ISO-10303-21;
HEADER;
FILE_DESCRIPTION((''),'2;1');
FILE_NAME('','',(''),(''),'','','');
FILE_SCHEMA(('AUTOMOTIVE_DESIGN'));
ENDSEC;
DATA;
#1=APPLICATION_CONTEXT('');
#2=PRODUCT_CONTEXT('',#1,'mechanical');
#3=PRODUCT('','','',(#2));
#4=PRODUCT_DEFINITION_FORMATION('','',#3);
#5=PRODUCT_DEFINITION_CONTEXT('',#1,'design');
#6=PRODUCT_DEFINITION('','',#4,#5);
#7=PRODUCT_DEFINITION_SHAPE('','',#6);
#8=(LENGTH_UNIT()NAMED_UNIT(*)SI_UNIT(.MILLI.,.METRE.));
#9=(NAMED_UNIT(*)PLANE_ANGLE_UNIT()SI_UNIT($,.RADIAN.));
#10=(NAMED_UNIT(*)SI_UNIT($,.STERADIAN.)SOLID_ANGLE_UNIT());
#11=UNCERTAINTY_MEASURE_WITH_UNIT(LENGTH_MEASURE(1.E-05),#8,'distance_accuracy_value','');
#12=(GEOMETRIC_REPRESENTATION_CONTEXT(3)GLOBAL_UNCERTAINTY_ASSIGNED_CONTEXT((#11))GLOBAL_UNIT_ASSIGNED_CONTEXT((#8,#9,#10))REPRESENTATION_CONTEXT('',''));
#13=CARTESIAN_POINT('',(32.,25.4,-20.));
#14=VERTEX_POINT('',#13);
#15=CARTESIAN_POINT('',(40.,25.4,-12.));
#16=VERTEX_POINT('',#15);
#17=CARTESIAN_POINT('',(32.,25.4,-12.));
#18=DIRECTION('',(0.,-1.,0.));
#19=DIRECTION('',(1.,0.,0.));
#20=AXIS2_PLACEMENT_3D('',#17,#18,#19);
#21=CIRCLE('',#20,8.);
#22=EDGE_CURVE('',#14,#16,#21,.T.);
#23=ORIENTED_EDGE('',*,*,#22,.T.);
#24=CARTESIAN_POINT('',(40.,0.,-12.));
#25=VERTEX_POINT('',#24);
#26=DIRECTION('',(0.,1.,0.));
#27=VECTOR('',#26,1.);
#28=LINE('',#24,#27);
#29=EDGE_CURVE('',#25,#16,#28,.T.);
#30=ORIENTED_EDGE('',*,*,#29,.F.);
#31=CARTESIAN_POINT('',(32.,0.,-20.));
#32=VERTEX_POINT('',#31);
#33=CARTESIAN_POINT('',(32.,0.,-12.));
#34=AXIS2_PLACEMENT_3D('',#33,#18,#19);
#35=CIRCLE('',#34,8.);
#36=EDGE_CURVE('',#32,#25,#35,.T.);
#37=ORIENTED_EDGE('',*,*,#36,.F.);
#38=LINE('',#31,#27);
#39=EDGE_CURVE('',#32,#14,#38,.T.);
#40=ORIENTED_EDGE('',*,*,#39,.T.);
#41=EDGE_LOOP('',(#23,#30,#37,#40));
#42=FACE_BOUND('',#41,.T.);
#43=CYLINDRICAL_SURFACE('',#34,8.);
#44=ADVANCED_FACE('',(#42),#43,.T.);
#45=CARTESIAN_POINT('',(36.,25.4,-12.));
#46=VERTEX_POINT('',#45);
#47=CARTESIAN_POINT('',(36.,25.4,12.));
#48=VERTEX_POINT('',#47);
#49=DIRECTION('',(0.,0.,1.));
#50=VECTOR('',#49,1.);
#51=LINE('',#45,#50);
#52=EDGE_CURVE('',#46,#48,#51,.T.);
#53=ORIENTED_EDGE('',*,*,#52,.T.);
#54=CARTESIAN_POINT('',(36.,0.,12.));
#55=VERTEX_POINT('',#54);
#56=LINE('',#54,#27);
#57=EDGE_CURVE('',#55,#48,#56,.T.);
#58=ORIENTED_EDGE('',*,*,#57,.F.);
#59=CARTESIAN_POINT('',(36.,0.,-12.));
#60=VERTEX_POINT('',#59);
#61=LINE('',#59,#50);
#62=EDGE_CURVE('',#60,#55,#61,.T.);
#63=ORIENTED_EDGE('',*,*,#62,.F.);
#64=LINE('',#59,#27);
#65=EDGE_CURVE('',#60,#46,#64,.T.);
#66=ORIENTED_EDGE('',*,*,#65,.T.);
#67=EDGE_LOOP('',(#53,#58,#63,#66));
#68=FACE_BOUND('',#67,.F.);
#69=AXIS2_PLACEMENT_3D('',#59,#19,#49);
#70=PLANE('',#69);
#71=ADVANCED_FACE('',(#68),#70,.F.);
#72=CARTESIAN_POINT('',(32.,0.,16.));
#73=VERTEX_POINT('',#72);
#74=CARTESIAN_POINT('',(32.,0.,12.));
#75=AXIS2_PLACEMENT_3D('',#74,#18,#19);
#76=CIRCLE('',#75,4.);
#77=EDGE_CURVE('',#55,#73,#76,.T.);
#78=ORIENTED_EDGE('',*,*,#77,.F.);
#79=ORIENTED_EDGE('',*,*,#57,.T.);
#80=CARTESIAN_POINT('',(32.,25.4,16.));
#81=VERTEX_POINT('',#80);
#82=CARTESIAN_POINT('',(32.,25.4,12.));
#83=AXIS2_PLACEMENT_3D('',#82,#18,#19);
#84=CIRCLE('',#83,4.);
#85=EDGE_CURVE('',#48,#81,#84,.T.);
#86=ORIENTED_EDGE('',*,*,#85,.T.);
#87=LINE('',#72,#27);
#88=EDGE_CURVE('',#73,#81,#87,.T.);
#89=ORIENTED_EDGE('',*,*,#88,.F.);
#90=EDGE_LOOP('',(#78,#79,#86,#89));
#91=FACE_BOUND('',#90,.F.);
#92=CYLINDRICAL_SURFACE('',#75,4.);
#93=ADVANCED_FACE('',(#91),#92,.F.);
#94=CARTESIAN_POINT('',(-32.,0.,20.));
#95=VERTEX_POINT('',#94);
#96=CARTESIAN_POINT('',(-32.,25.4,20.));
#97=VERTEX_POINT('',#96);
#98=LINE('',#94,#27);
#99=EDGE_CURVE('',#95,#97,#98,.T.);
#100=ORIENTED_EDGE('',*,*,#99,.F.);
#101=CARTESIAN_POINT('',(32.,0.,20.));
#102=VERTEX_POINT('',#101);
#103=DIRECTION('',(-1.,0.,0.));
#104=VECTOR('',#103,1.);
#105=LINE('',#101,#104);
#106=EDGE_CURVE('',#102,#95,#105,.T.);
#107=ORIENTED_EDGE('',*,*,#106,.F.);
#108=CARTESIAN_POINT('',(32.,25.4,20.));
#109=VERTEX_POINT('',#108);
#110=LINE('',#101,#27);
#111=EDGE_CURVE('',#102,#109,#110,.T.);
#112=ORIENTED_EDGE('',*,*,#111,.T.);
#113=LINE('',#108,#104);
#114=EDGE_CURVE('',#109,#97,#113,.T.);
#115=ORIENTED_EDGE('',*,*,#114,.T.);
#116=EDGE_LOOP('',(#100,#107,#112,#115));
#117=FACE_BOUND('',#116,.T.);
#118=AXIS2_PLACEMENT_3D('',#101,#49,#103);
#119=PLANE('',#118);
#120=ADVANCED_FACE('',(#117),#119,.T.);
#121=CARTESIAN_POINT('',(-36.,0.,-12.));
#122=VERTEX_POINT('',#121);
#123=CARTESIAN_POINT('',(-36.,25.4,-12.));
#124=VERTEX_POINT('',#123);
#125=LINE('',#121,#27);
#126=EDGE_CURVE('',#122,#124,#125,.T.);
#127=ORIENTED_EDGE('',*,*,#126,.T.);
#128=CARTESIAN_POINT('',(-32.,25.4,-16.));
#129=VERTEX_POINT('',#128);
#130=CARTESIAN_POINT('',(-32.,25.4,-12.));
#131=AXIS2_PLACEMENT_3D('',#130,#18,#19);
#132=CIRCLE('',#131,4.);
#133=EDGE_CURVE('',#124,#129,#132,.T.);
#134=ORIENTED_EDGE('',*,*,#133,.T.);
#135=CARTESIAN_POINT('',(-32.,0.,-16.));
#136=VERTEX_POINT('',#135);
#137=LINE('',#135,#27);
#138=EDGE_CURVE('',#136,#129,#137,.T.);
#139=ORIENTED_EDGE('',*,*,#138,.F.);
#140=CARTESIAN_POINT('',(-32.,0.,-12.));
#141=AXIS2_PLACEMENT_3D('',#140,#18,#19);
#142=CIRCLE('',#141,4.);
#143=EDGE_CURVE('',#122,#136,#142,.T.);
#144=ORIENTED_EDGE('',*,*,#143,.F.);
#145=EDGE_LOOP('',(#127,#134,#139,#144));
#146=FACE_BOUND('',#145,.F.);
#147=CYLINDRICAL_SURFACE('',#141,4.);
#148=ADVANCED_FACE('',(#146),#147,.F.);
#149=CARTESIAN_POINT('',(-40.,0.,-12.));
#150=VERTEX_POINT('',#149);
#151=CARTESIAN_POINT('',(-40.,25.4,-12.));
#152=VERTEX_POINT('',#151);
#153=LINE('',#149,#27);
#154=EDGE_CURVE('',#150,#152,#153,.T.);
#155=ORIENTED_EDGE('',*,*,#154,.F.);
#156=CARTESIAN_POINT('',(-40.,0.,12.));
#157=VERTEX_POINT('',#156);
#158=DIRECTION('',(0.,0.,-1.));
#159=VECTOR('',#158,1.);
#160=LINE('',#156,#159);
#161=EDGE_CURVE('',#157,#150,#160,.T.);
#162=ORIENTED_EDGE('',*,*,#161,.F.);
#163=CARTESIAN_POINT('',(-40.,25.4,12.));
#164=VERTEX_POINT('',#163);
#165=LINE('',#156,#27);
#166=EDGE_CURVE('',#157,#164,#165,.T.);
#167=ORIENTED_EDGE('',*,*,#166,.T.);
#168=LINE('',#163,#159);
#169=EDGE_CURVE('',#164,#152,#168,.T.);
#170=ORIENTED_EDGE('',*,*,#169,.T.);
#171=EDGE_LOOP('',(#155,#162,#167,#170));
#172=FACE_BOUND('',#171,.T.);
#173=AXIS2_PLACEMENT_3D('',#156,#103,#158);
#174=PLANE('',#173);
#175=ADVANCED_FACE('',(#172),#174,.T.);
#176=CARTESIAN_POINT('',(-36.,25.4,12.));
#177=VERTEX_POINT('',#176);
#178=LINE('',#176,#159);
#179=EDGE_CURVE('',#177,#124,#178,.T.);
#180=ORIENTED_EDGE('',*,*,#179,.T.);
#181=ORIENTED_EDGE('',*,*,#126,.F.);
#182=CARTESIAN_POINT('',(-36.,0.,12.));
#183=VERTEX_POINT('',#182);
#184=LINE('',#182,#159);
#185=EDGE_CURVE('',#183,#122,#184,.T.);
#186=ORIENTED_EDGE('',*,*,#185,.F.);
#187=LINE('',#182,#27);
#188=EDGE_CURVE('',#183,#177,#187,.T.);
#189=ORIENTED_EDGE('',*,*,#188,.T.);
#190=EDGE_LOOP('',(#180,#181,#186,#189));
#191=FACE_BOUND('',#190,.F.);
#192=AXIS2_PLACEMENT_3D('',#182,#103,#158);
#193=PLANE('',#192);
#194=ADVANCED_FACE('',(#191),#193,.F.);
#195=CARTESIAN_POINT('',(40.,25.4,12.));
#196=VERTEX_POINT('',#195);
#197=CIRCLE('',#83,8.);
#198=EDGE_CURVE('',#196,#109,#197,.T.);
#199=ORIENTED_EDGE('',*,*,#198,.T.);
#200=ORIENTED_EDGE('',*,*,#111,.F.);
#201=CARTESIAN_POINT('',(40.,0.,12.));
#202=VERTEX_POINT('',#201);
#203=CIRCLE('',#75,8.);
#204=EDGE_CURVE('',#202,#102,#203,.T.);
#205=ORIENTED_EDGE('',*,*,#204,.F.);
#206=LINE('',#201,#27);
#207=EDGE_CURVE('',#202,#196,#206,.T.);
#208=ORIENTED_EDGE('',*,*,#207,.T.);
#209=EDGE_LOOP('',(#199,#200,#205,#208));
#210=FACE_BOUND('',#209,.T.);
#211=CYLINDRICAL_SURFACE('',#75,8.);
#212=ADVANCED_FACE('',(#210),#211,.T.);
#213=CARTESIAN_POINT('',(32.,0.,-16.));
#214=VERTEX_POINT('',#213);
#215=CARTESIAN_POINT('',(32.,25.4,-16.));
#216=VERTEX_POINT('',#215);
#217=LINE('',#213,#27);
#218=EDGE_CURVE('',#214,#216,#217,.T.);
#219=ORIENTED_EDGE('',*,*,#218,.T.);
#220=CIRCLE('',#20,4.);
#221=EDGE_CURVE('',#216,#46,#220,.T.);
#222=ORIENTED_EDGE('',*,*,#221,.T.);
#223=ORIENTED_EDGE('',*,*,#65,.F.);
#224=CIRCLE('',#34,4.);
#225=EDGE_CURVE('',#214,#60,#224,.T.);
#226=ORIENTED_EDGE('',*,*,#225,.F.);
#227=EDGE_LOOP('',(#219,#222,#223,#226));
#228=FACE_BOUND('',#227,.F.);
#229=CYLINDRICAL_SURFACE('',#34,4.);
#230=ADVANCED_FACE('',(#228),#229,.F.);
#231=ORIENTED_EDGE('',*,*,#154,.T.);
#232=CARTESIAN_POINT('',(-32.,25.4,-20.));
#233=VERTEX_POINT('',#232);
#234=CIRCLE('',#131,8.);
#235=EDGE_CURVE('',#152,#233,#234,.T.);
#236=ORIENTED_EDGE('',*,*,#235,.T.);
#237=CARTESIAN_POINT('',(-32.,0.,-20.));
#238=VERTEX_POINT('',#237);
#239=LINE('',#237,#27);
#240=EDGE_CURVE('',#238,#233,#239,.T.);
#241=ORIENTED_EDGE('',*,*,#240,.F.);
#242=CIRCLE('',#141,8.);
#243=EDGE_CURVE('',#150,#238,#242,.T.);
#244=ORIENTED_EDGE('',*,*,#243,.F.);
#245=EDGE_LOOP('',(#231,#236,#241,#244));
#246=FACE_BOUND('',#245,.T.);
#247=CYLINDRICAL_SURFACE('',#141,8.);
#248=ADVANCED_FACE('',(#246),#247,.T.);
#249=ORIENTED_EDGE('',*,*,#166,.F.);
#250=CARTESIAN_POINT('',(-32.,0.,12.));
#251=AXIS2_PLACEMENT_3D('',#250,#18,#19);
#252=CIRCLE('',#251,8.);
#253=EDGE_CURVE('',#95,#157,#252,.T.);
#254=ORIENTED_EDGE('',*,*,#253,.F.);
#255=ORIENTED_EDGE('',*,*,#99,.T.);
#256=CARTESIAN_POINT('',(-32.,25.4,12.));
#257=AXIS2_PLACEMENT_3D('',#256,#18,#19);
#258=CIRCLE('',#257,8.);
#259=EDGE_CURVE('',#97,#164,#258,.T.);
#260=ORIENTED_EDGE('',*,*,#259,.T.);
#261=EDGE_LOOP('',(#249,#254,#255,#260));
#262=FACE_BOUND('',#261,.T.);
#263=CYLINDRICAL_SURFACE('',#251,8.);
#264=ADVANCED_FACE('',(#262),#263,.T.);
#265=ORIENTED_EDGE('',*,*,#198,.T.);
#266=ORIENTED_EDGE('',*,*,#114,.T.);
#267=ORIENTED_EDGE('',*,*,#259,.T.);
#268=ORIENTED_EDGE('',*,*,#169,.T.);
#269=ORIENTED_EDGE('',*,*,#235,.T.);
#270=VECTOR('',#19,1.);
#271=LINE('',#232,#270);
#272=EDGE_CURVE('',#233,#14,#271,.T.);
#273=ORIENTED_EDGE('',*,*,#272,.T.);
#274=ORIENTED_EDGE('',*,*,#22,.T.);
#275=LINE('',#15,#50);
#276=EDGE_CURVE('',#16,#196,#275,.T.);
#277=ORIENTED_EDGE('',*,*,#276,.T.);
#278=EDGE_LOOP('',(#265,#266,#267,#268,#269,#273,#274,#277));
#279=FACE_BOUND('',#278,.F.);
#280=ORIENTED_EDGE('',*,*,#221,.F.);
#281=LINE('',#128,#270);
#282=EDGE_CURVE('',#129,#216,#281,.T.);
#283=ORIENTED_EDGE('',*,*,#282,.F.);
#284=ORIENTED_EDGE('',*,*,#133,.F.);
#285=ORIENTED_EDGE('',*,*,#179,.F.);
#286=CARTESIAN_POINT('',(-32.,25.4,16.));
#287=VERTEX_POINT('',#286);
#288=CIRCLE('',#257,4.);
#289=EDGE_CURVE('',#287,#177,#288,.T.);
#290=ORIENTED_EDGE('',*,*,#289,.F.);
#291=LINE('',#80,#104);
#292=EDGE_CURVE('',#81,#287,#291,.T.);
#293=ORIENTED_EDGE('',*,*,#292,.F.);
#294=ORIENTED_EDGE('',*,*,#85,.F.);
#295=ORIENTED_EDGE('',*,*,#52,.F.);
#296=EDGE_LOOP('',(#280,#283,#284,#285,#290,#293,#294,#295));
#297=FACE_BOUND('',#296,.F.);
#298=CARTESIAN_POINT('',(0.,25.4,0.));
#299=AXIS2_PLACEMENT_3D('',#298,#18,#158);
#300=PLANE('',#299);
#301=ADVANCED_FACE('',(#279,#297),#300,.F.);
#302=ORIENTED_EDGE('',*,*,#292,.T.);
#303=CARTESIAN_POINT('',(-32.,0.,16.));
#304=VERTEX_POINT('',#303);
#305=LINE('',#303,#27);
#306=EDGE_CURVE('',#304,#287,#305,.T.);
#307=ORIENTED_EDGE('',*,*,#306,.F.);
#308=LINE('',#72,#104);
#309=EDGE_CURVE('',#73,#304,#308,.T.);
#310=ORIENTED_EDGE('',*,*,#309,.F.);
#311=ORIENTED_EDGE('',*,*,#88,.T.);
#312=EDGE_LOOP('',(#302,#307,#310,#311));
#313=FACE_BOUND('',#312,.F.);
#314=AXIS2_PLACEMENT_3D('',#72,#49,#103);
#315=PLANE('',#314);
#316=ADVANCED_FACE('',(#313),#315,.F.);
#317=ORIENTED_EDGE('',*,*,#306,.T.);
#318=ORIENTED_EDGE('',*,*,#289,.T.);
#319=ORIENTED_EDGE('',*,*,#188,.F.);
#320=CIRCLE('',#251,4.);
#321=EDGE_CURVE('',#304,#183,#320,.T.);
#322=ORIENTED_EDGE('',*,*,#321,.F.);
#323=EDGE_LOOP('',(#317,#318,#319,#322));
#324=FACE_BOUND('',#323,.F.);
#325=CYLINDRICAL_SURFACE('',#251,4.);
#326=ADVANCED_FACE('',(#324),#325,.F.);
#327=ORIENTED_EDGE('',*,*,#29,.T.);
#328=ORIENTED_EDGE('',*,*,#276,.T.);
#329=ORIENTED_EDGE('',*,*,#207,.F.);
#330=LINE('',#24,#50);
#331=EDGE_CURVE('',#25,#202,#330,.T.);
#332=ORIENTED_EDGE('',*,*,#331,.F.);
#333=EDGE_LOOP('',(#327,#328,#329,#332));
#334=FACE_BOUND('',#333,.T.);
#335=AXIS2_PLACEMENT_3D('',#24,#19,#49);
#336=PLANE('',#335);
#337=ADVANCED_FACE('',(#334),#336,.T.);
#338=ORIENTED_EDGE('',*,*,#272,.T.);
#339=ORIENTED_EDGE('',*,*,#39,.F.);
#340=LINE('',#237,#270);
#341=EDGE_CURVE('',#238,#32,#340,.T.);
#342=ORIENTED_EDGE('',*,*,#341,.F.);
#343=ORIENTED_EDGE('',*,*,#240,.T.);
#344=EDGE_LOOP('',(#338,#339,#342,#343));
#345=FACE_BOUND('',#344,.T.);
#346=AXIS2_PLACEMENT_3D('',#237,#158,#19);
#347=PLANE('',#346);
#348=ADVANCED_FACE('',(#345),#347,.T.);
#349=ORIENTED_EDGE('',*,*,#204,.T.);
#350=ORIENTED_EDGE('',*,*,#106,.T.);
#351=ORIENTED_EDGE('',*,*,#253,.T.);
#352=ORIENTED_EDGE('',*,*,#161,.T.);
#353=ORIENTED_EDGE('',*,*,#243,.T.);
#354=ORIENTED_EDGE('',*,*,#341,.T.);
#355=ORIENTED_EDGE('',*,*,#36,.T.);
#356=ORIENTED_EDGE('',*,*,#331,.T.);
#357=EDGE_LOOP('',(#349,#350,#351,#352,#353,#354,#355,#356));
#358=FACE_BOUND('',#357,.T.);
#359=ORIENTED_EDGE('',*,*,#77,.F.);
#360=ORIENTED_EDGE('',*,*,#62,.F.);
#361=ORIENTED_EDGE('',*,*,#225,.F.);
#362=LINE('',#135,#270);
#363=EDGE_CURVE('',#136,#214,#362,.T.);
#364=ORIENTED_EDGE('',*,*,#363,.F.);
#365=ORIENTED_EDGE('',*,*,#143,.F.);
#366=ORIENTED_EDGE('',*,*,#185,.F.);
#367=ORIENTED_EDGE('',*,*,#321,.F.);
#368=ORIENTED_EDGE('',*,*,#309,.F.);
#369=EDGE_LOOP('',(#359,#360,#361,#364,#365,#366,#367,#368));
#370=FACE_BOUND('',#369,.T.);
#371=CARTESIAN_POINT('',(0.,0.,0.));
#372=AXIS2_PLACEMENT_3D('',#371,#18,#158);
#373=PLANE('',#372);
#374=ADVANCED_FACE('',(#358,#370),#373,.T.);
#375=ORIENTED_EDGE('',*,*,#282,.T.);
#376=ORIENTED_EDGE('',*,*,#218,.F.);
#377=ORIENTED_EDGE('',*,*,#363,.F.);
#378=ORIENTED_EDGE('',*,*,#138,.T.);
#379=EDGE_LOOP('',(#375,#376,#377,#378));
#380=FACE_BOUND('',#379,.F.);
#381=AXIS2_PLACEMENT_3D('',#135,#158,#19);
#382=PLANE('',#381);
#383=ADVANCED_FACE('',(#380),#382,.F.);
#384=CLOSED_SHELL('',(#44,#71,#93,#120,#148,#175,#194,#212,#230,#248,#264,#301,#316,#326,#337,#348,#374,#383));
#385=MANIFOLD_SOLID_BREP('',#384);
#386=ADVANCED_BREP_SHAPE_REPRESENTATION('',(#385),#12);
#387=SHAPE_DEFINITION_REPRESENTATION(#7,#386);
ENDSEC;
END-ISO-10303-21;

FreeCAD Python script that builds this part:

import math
import FreeCAD as App
import Part
import Sketcher
from FreeCAD import Vector
Q = App.Units.Quantity

doc = App.newDocument("Part")
params = doc.addObject("Spreadsheet::Sheet", "Params")
for row, (alias, value) in enumerate([
    ("sketch1_radius", "8 mm"),
    ("sketch1_radius2", "4 mm"),
    ("pad1_length", "25.4 mm"),
], start=1):
    params.set(f"A{row}", alias)
    params.set(f"B{row}", "=" + value)
    params.setAlias(f"B{row}", alias)

body = doc.addObject("PartDesign::Body", "Body")

# Sketch on XZ plane
sketch1 = doc.addObject("Sketcher::SketchObject", "Sketch")
body.addObject(sketch1)
sketch1.AttachmentSupport = (doc.XZ_Plane, [""])
sketch1.MapMode = "FlatFace"
sketch1.addGeometry([
    Part.LineSegment(Vector(32, 20, 0), Vector(-32, 20, 0)),  # 0
    Part.ArcOfCircle(Part.Circle(Vector(-32, 12, 0), Vector(0, 0, 1), 8), math.radians(90), math.radians(180)),  # 1
    Part.LineSegment(Vector(-40, 12, 0), Vector(-40, -12, 0)),  # 2
    Part.ArcOfCircle(Part.Circle(Vector(-32, -12, 0), Vector(0, 0, 1), 8), math.radians(180), math.radians(270)),  # 3
    Part.LineSegment(Vector(-32, -20, 0), Vector(32, -20, 0)),  # 4
    Part.ArcOfCircle(Part.Circle(Vector(32, -12, 0), Vector(0, 0, 1), 8), math.radians(-90), math.radians(0)),  # 5
    Part.LineSegment(Vector(40, -12, 0), Vector(40, 12, 0)),  # 6
    Part.ArcOfCircle(Part.Circle(Vector(32, 12, 0), Vector(0, 0, 1), 8), math.radians(0), math.radians(90)),  # 7
    Part.ArcOfCircle(Part.Circle(Vector(-32, 12, 0), Vector(0, 0, 1), 4), math.radians(90), math.radians(180)),  # 8
    Part.LineSegment(Vector(-32, 16, 0), Vector(32, 16, 0)),  # 9
    Part.ArcOfCircle(Part.Circle(Vector(32, 12, 0), Vector(0, 0, 1), 4), math.radians(0), math.radians(90)),  # 10
    Part.LineSegment(Vector(36, 12, 0), Vector(36, -12, 0)),  # 11
    Part.ArcOfCircle(Part.Circle(Vector(32, -12, 0), Vector(0, 0, 1), 4), math.radians(-90), math.radians(0)),  # 12
    Part.LineSegment(Vector(32, -16, 0), Vector(-32, -16, 0)),  # 13
    Part.ArcOfCircle(Part.Circle(Vector(-32, -12, 0), Vector(0, 0, 1), 4), math.radians(180), math.radians(270)),  # 14
    Part.LineSegment(Vector(-36, -12, 0), Vector(-36, 12, 0)),  # 15
], False)
sketch1.addConstraint([
    Sketcher.Constraint("Tangent", 0, 2, 1, 1),
    Sketcher.Constraint("Tangent", 1, 2, 2, 1),
    Sketcher.Constraint("Tangent", 2, 2, 3, 1),
    Sketcher.Constraint("Tangent", 3, 2, 4, 1),
    Sketcher.Constraint("Tangent", 4, 2, 5, 1),
    Sketcher.Constraint("Tangent", 5, 2, 6, 1),
    Sketcher.Constraint("Tangent", 6, 2, 7, 1),
    Sketcher.Constraint("Tangent", 7, 2, 0, 1),
    Sketcher.Constraint("Tangent", 8, 1, 9, 1),
    Sketcher.Constraint("Tangent", 9, 2, 10, 2),
    Sketcher.Constraint("Tangent", 10, 1, 11, 1),
    Sketcher.Constraint("Tangent", 11, 2, 12, 2),
    Sketcher.Constraint("Tangent", 12, 1, 13, 1),
    Sketcher.Constraint("Tangent", 13, 2, 14, 2),
    Sketcher.Constraint("Tangent", 14, 1, 15, 1),
    Sketcher.Constraint("Tangent", 15, 2, 8, 2),
    Sketcher.Constraint("Horizontal", 0),
    Sketcher.Constraint("Vertical", 2),
    Sketcher.Constraint("Horizontal", 4),
    Sketcher.Constraint("Vertical", 6),
    Sketcher.Constraint("Horizontal", 9),
    Sketcher.Constraint("Vertical", 11),
    Sketcher.Constraint("Horizontal", 13),
    Sketcher.Constraint("Vertical", 15),
    Sketcher.Constraint("Coincident", 8, 3, 1, 3),
    Sketcher.Constraint("Coincident", 10, 3, 7, 3),
    Sketcher.Constraint("Coincident", 12, 3, 5, 3),
    Sketcher.Constraint("Equal", 1, 3),
    Sketcher.Constraint("Equal", 3, 5),
    Sketcher.Constraint("Equal", 5, 7),
    Sketcher.Constraint("Equal", 12, 14),
    Sketcher.Constraint("Symmetric", 1, 3, 5, 3, -1, 1),
    Sketcher.Constraint("DistanceX", 1, 3, -1, 1, Q("32 mm")),
    Sketcher.Constraint("Radius", 1, Q("8 mm")),
    Sketcher.Constraint("Radius", 8, Q("4 mm")),
    Sketcher.Constraint("DistanceY", 3, 3, 0, 2, Q("32 mm")),
])
sketch1.setExpression("Constraints[33]", "Params.sketch1_radius")
sketch1.setExpression("Constraints[34]", "Params.sketch1_radius2")
pad1 = doc.addObject("PartDesign::Pad", "Pad")
body.addObject(pad1)
pad1.Profile = sketch1
pad1.setExpression("Length", "Params.pad1_length")
pad1.Reversed = True

doc.recompute()
